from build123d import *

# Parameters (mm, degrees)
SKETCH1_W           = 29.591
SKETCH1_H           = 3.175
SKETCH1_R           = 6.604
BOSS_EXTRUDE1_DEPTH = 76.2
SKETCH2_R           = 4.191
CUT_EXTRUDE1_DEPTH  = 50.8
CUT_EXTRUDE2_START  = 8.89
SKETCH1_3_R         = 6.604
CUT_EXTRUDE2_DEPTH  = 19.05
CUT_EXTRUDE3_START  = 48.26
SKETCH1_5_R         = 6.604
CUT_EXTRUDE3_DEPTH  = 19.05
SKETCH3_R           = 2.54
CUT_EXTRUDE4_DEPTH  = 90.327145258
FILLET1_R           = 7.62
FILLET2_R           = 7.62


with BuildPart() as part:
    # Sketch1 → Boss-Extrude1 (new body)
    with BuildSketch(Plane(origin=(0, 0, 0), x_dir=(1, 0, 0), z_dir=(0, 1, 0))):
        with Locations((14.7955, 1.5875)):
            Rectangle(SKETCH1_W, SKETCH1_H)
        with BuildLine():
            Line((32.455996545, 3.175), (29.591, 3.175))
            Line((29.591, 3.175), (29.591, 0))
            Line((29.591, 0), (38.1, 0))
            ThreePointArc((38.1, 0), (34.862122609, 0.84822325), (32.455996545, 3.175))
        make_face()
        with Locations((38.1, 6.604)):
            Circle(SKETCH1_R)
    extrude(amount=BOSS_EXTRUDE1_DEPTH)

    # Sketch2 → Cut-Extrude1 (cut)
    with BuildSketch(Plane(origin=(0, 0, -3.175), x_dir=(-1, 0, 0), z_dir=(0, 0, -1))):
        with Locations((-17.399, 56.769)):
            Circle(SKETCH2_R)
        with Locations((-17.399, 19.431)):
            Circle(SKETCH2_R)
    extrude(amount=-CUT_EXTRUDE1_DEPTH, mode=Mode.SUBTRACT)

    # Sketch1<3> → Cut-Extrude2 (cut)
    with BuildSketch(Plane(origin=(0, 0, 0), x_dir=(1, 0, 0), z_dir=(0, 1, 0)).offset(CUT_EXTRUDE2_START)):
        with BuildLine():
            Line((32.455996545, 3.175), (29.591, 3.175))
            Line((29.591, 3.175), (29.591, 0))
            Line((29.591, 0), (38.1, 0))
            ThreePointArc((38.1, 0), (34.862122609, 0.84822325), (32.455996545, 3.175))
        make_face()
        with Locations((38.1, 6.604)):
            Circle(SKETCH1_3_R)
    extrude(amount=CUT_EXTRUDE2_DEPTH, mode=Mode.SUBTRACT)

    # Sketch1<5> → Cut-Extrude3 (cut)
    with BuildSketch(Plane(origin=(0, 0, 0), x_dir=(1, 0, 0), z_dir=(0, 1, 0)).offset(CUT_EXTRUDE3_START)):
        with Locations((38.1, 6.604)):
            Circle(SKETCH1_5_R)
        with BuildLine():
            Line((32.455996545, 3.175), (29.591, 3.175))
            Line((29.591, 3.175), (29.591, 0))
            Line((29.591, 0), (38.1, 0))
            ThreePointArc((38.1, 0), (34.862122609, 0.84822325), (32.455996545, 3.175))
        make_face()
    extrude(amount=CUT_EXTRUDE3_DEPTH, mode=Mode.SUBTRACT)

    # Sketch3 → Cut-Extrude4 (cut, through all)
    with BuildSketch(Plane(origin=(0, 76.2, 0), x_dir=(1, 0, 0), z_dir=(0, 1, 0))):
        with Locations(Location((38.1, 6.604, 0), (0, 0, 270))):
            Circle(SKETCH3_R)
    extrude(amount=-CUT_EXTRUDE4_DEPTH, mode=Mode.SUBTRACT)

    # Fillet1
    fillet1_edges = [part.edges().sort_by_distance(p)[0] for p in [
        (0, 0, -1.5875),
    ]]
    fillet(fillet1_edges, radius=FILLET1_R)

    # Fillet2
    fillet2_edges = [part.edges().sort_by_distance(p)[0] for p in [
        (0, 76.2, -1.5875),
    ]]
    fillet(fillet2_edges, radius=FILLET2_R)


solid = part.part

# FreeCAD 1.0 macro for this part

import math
import FreeCAD as App
import Part
import Sketcher

V = App.Vector
Q = App.Units.Quantity


def edges_at(feature, points):
    """Names of the edges that pass closest to the given points."""
    edges = feature.Shape.Edges
    near = lambda p: min(range(len(edges)), key=lambda i: edges[i].distToShape(Part.Vertex(*p))[0])
    return sorted({f"Edge{near(p) + 1}" for p in points})

doc = App.newDocument("Part")
body = doc.addObject("PartDesign::Body", "Body")

# Sketch on XZ plane
sketch1 = body.newObject("Sketcher::SketchObject", "Sketch")
sketch1.AttachmentSupport = (doc.getObject("XZ_Plane"), [""])
sketch1.MapMode = "FlatFace"
sketch1.addGeometry(Part.LineSegment(V(0, -3.2, 0), V(0, 0, 0)), False)
sketch1.addGeometry(Part.LineSegment(V(0, 0, 0), V(38.1, 0, 0)), False)
sketch1.addGeometry(Part.ArcOfCircle(Part.Circle(V(38.1, -6.6, 0), V(0, 0, 1), 6.6), math.radians(149), math.radians(450)), False)
sketch1.addGeometry(Part.LineSegment(V(32.5, -3.2, 0), V(0, -3.2, 0)), False)
sketch1.addConstraint(Sketcher.Constraint("Coincident", 0, 2, 1, 1))
sketch1.addConstraint(Sketcher.Constraint("Tangent", 1, 2, 2, 2))
sketch1.addConstraint(Sketcher.Constraint("Coincident", 2, 1, 3, 1))
sketch1.addConstraint(Sketcher.Constraint("Coincident", 3, 2, 0, 1))
sketch1.addConstraint(Sketcher.Constraint("Vertical", 0))
sketch1.addConstraint(Sketcher.Constraint("Horizontal", 1))
sketch1.addConstraint(Sketcher.Constraint("Horizontal", 3))
sketch1.addConstraint(Sketcher.Constraint("Coincident", 0, 2, -1, 1))
sketch1.addConstraint(Sketcher.Constraint("Radius", 2, Q("0.26 in")))
sketch1.addConstraint(Sketcher.Constraint("DistanceX", 1, 1, 1, 2, Q("1.5 in")))
sketch1.addConstraint(Sketcher.Constraint("DistanceY", 0, 1, 0, 2, Q("0.125 in")))
pad1 = body.newObject("PartDesign::Pad", "Pad")
pad1.Profile = sketch1
pad1.Length = Q("3 in")
pad1.Reversed = True

# Sketch on XY plane
sketch2 = body.newObject("Sketcher::SketchObject", "Sketch001")
sketch2.AttachmentSupport = (doc.getObject("XY_Plane"), [""])
sketch2.MapMode = "FlatFace"
sketch2.AttachmentOffset = App.Placement(V(0, 0, -0.125 * 25.4), App.Rotation())
sketch2.addGeometry(Part.Circle(V(17.4, 56.8, 0), V(0, 0, 1), 4.2), False)
sketch2.addGeometry(Part.Circle(V(17.4, 19.4, 0), V(0, 0, 1), 4.2), False)
sketch2.addConstraint(Sketcher.Constraint("Equal", 0, 1))
sketch2.addConstraint(Sketcher.Constraint("Vertical", 0, 3, 1, 3))
sketch2.addConstraint(Sketcher.Constraint("Diameter", 0, Q("0.33 in")))
sketch2.addConstraint(Sketcher.Constraint("DistanceY", 1, 3, 0, 3, Q("1.47 in")))
sketch2.addConstraint(Sketcher.Constraint("DistanceX", -1, 1, 0, 3, Q("0.685 in")))
sketch2.addConstraint(Sketcher.Constraint("DistanceY", -1, 1, 0, 3, Q("2.235 in")))
pocket1 = body.newObject("PartDesign::Pocket", "Pocket")
pocket1.Profile = sketch2
pocket1.Length = Q("2 in")
pocket1.Reversed = True

# Sketch on XZ plane
sketch3 = body.newObject("Sketcher::SketchObject", "Sketch002")
sketch3.AttachmentSupport = (doc.getObject("XZ_Plane"), [""])
sketch3.MapMode = "FlatFace"
sketch3.AttachmentOffset = App.Placement(V(0, 0, -0.35 * 25.4), App.Rotation())
sketch3.addGeometry(Part.LineSegment(V(32.5, -3.2, 0), V(29.6, -3.2, 0)), False)
sketch3.addGeometry(Part.LineSegment(V(29.6, -3.2, 0), V(29.6, 0, 0)), False)
sketch3.addGeometry(Part.LineSegment(V(29.6, 0, 0), V(38.1, 0, 0)), False)
sketch3.addGeometry(Part.ArcOfCircle(Part.Circle(V(38.1, -6.6, 0), V(0, 0, 1), 6.6), math.radians(149), math.radians(450)), False)
sketch3.addConstraint(Sketcher.Constraint("Coincident", 0, 2, 1, 1))
sketch3.addConstraint(Sketcher.Constraint("Coincident", 1, 2, 2, 1))
sketch3.addConstraint(Sketcher.Constraint("Tangent", 2, 2, 3, 2))
sketch3.addConstraint(Sketcher.Constraint("Coincident", 3, 1, 0, 1))
sketch3.addConstraint(Sketcher.Constraint("Horizontal", 0))
sketch3.addConstraint(Sketcher.Constraint("Vertical", 1))
sketch3.addConstraint(Sketcher.Constraint("Horizontal", 2))
sketch3.addConstraint(Sketcher.Constraint("PointOnObject", 1, 2, -1))
sketch3.addConstraint(Sketcher.Constraint("Radius", 3, Q("0.26 in")))
sketch3.addConstraint(Sketcher.Constraint("DistanceX", -1, 1, 3, 3, Q("1.5 in")))
sketch3.addConstraint(Sketcher.Constraint("DistanceX", 2, 1, 2, 2, Q("0.335 in")))
sketch3.addConstraint(Sketcher.Constraint("DistanceY", 1, 1, 1, 2, Q("0.125 in")))
pocket2 = body.newObject("PartDesign::Pocket", "Pocket001")
pocket2.Profile = sketch3
pocket2.Length = Q("0.75 in")

# Sketch on XZ plane
sketch4 = body.newObject("Sketcher::SketchObject", "Sketch003")
sketch4.AttachmentSupport = (doc.getObject("XZ_Plane"), [""])
sketch4.MapMode = "FlatFace"
sketch4.AttachmentOffset = App.Placement(V(0, 0, -1.9 * 25.4), App.Rotation())
sketch4.addGeometry(Part.LineSegment(V(32.5, -3.2, 0), V(29.6, -3.2, 0)), False)
sketch4.addGeometry(Part.LineSegment(V(29.6, -3.2, 0), V(29.6, 0, 0)), False)
sketch4.addGeometry(Part.LineSegment(V(29.6, 0, 0), V(38.1, 0, 0)), False)
sketch4.addGeometry(Part.ArcOfCircle(Part.Circle(V(38.1, -6.6, 0), V(0, 0, 1), 6.6), math.radians(149), math.radians(450)), False)
sketch4.addConstraint(Sketcher.Constraint("Coincident", 0, 2, 1, 1))
sketch4.addConstraint(Sketcher.Constraint("Coincident", 1, 2, 2, 1))
sketch4.addConstraint(Sketcher.Constraint("Tangent", 2, 2, 3, 2))
sketch4.addConstraint(Sketcher.Constraint("Coincident", 3, 1, 0, 1))
sketch4.addConstraint(Sketcher.Constraint("Horizontal", 0))
sketch4.addConstraint(Sketcher.Constraint("Vertical", 1))
sketch4.addConstraint(Sketcher.Constraint("Horizontal", 2))
sketch4.addConstraint(Sketcher.Constraint("PointOnObject", 1, 2, -1))
sketch4.addConstraint(Sketcher.Constraint("Radius", 3, Q("0.26 in")))
sketch4.addConstraint(Sketcher.Constraint("DistanceX", -1, 1, 3, 3, Q("1.5 in")))
sketch4.addConstraint(Sketcher.Constraint("DistanceX", 2, 1, 2, 2, Q("0.335 in")))
sketch4.addConstraint(Sketcher.Constraint("DistanceY", 1, 1, 1, 2, Q("0.125 in")))
pocket3 = body.newObject("PartDesign::Pocket", "Pocket002")
pocket3.Profile = sketch4
pocket3.Length = Q("0.75 in")

# Sketch on XZ plane
sketch5 = body.newObject("Sketcher::SketchObject", "Sketch004")
sketch5.AttachmentSupport = (doc.getObject("XZ_Plane"), [""])
sketch5.MapMode = "FlatFace"
sketch5.AttachmentOffset = App.Placement(V(0, 0, -3 * 25.4), App.Rotation())
sketch5.addGeometry(Part.Circle(V(38.1, -6.6, 0), V(0, 0, 1), 2.5), False)
sketch5.addConstraint(Sketcher.Constraint("Diameter", 0, Q("0.2 in")))
sketch5.addConstraint(Sketcher.Constraint("DistanceX", -1, 1, 0, 3, Q("1.5 in")))
sketch5.addConstraint(Sketcher.Constraint("DistanceY", 0, 3, -1, 1, Q("0.26 in")))
pocket4 = body.newObject("PartDesign::Pocket", "Pocket003")
pocket4.Profile = sketch5
pocket4.Type = "ThroughAll"
pocket4.Reversed = True
doc.recompute()

fillet = body.newObject("PartDesign::Fillet", "Fillet")
fillet.Base = (pocket4, edges_at(pocket4, [(0, 0, -1.587)]))
fillet.Radius = Q("0.3 in")
doc.recompute()

fillet2 = body.newObject("PartDesign::Fillet", "Fillet001")
fillet2.Base = (fillet, edges_at(fillet, [(0, 76.2, -1.587)]))
fillet2.Radius = Q("0.3 in")

doc.recompute()
